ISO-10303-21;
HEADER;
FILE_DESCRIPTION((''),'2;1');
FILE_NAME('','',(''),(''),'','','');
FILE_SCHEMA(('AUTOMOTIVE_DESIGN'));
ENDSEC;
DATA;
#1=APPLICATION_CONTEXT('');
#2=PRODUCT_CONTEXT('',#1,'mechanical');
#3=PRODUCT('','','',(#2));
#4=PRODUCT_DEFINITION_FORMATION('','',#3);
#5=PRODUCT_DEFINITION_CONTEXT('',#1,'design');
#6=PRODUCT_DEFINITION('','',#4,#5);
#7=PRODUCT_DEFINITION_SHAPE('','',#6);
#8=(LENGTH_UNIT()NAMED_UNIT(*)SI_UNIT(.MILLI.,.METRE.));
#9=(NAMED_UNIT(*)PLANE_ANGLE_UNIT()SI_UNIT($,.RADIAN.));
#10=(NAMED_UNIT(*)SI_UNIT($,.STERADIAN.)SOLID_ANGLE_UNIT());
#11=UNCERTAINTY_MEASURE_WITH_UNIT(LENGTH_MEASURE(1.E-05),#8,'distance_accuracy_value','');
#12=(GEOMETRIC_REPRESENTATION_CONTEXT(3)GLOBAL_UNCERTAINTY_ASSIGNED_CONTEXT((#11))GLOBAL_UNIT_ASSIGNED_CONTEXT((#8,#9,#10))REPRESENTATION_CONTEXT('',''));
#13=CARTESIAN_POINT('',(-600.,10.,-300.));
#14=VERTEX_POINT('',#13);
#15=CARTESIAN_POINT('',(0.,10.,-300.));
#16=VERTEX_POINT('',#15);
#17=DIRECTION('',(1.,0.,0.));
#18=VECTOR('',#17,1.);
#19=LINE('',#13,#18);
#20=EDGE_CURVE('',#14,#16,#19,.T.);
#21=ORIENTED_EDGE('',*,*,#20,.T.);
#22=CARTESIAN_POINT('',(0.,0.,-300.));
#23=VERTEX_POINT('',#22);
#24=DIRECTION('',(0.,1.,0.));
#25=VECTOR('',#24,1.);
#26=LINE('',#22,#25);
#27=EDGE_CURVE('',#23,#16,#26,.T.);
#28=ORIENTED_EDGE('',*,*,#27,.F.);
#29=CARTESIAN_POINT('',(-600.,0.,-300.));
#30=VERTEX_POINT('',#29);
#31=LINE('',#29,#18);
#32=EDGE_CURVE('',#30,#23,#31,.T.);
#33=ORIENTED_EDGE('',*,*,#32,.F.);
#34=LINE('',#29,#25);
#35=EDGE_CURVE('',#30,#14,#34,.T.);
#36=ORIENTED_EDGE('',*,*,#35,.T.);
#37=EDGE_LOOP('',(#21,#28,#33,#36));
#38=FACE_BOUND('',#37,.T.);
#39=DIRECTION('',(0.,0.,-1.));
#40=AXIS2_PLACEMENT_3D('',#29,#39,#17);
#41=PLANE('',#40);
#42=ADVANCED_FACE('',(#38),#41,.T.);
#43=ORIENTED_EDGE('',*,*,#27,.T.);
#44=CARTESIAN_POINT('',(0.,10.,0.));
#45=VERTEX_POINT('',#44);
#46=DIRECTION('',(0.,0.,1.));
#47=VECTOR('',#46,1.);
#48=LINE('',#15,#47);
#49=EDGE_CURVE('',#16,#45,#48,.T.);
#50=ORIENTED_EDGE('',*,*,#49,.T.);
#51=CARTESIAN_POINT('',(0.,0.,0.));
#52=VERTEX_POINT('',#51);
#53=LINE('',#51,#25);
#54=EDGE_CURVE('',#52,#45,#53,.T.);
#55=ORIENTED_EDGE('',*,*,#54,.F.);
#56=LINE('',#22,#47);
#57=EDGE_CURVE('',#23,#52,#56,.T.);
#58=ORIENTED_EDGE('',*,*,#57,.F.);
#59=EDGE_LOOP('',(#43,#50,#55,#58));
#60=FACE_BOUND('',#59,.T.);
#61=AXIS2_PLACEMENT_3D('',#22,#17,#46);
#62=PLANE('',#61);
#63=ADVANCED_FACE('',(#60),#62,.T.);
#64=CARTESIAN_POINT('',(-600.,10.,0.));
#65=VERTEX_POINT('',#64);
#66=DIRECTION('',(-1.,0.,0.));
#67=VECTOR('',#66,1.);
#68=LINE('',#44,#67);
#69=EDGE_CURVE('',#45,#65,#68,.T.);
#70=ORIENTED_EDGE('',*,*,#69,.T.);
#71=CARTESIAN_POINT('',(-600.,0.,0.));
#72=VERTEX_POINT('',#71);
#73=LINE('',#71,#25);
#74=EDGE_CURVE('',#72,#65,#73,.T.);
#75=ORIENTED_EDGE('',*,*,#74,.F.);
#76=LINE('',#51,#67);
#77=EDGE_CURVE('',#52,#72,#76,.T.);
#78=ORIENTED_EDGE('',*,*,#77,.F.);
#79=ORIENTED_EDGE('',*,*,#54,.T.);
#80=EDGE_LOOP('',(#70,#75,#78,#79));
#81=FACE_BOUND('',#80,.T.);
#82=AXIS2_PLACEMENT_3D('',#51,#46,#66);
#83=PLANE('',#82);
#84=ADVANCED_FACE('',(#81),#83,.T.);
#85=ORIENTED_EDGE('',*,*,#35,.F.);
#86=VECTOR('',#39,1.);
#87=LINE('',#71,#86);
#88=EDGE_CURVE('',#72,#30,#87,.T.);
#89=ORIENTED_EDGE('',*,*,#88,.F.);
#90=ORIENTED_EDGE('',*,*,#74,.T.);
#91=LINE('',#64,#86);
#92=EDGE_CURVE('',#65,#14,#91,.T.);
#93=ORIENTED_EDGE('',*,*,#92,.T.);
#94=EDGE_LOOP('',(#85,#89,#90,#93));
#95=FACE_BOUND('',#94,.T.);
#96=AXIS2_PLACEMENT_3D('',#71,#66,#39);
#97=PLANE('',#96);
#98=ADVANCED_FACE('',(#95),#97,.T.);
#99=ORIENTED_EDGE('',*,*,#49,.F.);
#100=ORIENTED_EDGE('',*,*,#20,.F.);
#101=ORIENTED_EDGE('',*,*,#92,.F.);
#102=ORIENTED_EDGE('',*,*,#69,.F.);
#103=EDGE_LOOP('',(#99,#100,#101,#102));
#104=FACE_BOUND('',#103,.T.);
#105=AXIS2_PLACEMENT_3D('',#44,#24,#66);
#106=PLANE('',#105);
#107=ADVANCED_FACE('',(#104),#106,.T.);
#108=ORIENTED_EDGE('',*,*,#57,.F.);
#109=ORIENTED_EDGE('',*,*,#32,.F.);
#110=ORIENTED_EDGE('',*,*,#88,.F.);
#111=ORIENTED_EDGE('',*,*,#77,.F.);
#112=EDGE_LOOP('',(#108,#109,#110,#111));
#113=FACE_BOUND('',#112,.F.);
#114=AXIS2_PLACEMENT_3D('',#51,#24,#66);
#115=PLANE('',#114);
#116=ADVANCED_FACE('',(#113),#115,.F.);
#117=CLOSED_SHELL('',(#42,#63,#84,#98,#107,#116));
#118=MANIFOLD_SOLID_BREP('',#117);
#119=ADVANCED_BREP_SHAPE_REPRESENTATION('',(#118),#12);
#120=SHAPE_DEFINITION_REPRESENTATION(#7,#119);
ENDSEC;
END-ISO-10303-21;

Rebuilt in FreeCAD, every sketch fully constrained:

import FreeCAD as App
import Part
import Sketcher

doc = App.newDocument("Part")
params = doc.addObject("Spreadsheet::Sheet", "Params")
for row, (alias, value) in enumerate([
    ("sketch1_width", "600 mm"),
    ("sketch1_height", "300 mm"),
    ("pad1_length", "10 mm"),
], start=1):
    params.set(f"A{row}", alias)
    params.set(f"B{row}", "=" + value)
    params.setAlias(f"B{row}", alias)

body = doc.addObject("PartDesign::Body", "Body")

# Sketch on XZ plane
sketch1 = doc.addObject("Sketcher::SketchObject", "Sketch")
body.addObject(sketch1)
sketch1.AttachmentSupport = (doc.XZ_Plane, [""])
sketch1.MapMode = "FlatFace"
sketch1.addGeometry([
    Part.LineSegment(App.Vector(-600, 0, 0), App.Vector(0, 0, 0)),
    Part.LineSegment(App.Vector(0, 0, 0), App.Vector(0, -300, 0)),
    Part.LineSegment(App.Vector(0, -300, 0), App.Vector(-600, -300, 0)),
    Part.LineSegment(App.Vector(-600, -300, 0), App.Vector(-600, 0, 0)),
], False)
sketch1.addConstraint([
    Sketcher.Constraint("Coincident", 0, 2, 1, 1),
    Sketcher.Constraint("Coincident", 1, 2, 2, 1),
    Sketcher.Constraint("Coincident", 2, 2, 3, 1),
    Sketcher.Constraint("Coincident", 3, 2, 0, 1),
    Sketcher.Constraint("Horizontal", 0),
    Sketcher.Constraint("Vertical", 1),
    Sketcher.Constraint("Horizontal", 2),
    Sketcher.Constraint("Vertical", 3),
    Sketcher.Constraint("Coincident", 0, 2, -1, 1),
    Sketcher.Constraint("DistanceX", 0, 1, 0, 2, 600.0),
    Sketcher.Constraint("DistanceY", 1, 2, 1, 1, 300.0),
])
sketch1.setExpression("Constraints[9]", "Params.sketch1_width")
sketch1.setExpression("Constraints[10]", "Params.sketch1_height")
pad1 = doc.addObject("PartDesign::Pad", "Pad")
body.addObject(pad1)
pad1.Profile = sketch1
pad1.setExpression("Length", "Params.pad1_length")
pad1.Reversed = True

doc.recompute()
